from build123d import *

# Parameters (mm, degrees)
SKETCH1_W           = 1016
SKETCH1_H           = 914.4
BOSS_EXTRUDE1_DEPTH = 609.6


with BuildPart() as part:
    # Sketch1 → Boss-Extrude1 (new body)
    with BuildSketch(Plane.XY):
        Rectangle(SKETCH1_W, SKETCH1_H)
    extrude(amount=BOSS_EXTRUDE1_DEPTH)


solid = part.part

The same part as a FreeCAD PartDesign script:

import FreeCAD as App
import Part
import Sketcher
Q = App.Units.Quantity


def add_polygon(sketch, points):
    """Adds a closed chain of lines whose ends are joined by coincident constraints."""
    first, n = sketch.GeometryCount, len(points)
    for a, b in zip(points, points[1:] + points[:1]):
        sketch.addGeometry(Part.LineSegment(App.Vector(*a, 0), App.Vector(*b, 0)), False)
    for i in range(n):
        sketch.addConstraint(Sketcher.Constraint("Coincident", first + i, 2, first + (i + 1) % n, 1))

doc = App.newDocument("Part")
body = doc.addObject("PartDesign::Body", "Body")

# Sketch on XY plane
sketch1 = body.newObject("Sketcher::SketchObject", "Sketch")
sketch1.AttachmentSupport = (doc.getObject("XY_Plane"), [""])
sketch1.MapMode = "FlatFace"
add_polygon(sketch1, [(-508, 457), (-508, -457), (508, -457), (508, 457)])  # lines 0-3
sketch1.addConstraint(Sketcher.Constraint("Vertical", 0))
sketch1.addConstraint(Sketcher.Constraint("Horizontal", 1))
sketch1.addConstraint(Sketcher.Constraint("Vertical", 2))
sketch1.addConstraint(Sketcher.Constraint("Horizontal", 3))
sketch1.addConstraint(Sketcher.Constraint("Symmetric", 0, 2, 2, 2, -1, 1))
sketch1.addConstraint(Sketcher.Constraint("DistanceX", 1, 1, 1, 2, Q("40 in")))
sketch1.addConstraint(Sketcher.Constraint("DistanceY", 0, 2, 0, 1, Q("36 in")))
pad1 = body.newObject("PartDesign::Pad", "Pad")
pad1.Profile = sketch1
pad1.Length = Q("24 in")

doc.recompute()
